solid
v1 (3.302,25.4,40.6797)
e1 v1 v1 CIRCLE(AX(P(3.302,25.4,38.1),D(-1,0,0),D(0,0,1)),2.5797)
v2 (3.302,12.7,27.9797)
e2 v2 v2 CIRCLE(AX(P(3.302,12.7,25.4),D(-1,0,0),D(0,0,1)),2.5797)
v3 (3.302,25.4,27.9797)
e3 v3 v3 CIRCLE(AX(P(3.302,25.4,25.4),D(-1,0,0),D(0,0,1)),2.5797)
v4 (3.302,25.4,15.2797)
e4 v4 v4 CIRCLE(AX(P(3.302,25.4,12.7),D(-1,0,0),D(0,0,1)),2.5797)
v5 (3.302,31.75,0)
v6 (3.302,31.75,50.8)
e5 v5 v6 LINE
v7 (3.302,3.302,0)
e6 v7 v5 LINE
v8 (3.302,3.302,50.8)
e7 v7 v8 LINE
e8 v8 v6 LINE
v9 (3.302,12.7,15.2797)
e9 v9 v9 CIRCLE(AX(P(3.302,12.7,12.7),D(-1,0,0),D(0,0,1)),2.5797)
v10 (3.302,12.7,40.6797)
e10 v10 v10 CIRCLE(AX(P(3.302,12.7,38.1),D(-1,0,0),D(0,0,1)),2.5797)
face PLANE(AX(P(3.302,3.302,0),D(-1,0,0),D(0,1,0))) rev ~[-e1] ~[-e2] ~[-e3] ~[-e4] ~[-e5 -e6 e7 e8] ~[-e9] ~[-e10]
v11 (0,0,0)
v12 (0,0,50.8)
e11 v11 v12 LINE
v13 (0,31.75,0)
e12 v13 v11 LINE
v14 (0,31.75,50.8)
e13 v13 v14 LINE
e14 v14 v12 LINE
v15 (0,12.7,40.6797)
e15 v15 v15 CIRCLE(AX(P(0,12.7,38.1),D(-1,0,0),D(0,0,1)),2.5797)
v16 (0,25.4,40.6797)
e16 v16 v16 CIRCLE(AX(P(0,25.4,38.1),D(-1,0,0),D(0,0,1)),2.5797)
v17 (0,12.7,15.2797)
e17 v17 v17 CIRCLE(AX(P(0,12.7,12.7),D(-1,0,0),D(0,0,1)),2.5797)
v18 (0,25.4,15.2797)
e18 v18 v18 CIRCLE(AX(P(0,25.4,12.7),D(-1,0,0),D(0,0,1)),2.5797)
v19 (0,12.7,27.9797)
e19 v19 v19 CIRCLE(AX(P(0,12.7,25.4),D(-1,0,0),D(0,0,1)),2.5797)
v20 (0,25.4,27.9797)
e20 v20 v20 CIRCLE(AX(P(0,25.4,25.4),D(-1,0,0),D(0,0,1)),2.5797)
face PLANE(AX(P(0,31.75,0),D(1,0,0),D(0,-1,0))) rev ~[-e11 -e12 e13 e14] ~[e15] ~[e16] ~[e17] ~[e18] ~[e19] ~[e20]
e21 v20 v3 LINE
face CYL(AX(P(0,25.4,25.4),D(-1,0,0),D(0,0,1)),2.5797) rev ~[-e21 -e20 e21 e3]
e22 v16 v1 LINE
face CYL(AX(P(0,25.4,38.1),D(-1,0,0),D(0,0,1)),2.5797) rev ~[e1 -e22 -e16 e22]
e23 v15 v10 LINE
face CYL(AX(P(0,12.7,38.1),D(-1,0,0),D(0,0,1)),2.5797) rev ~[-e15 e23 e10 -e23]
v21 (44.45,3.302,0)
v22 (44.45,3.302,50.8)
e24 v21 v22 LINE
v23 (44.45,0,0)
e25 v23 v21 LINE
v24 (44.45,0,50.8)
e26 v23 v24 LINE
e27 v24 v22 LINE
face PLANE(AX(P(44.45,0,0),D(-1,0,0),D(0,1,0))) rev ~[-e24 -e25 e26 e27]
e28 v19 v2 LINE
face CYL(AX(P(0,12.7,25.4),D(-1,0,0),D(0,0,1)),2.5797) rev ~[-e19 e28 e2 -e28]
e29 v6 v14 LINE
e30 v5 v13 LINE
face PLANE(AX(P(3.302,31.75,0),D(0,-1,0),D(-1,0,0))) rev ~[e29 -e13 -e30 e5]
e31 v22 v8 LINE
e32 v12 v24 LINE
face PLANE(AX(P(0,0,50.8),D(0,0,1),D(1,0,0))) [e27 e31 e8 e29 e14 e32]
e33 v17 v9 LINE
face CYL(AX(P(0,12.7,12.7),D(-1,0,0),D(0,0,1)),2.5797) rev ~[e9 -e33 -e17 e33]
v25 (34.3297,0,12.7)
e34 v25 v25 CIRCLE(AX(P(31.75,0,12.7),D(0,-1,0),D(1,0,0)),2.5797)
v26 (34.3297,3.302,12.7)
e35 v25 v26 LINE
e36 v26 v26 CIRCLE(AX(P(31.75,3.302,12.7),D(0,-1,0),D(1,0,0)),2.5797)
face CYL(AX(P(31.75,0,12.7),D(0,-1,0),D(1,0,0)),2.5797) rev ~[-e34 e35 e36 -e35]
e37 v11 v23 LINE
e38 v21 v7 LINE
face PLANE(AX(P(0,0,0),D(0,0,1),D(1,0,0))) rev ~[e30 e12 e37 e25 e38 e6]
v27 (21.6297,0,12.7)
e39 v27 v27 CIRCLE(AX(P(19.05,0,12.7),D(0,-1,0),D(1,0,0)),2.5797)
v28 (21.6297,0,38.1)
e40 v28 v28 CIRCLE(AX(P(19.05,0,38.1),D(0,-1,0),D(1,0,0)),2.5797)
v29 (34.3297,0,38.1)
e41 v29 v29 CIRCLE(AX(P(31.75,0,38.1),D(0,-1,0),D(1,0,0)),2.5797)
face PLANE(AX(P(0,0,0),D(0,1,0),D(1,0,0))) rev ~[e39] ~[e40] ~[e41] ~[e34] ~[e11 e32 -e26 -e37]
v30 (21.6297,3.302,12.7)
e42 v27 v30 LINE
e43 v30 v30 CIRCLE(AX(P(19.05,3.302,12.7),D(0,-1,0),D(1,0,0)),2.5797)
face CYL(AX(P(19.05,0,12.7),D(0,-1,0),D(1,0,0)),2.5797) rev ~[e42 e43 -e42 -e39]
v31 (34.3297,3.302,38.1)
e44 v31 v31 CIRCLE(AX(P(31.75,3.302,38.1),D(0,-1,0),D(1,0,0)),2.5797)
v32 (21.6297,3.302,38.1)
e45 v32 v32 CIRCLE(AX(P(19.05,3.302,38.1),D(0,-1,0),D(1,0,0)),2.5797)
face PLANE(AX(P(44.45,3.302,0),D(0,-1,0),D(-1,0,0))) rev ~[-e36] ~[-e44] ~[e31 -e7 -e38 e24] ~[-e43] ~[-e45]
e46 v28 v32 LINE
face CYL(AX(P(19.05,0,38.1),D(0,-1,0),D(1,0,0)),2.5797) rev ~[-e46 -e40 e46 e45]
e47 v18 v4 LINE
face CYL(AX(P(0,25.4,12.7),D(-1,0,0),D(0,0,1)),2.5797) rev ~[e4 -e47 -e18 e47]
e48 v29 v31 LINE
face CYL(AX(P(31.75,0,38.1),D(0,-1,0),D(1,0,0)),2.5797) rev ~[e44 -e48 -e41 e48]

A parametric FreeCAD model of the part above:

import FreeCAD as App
import Part
import Sketcher
Q = App.Units.Quantity

doc = App.newDocument("Part")
body = doc.addObject("PartDesign::Body", "Body")

# Sketch on XY plane
sketch1 = body.newObject("Sketcher::SketchObject", "Sketch")
sketch1.AttachmentSupport = (doc.getObject("XY_Plane"), [""])
sketch1.MapMode = "FlatFace"
sketch1.addGeometry([
    Part.LineSegment(App.Vector(0, 31.75, 0), App.Vector(0, 0, 0)),  # 0
    Part.LineSegment(App.Vector(0, 0, 0), App.Vector(44.45, 0, 0)),  # 1
    Part.LineSegment(App.Vector(44.45, 0, 0), App.Vector(44.45, 3.302, 0)),  # 2
    Part.LineSegment(App.Vector(44.45, 3.302, 0), App.Vector(3.302, 3.302, 0)),  # 3
    Part.LineSegment(App.Vector(3.302, 3.302, 0), App.Vector(3.302, 31.75, 0)),  # 4
    Part.LineSegment(App.Vector(3.302, 31.75, 0), App.Vector(0, 31.75, 0)),  # 5
], False)
sketch1.addConstraint([
    Sketcher.Constraint("Coincident", 0, 2, 1, 1),
    Sketcher.Constraint("Coincident", 1, 2, 2, 1),
    Sketcher.Constraint("Coincident", 2, 2, 3, 1),
    Sketcher.Constraint("Coincident", 3, 2, 4, 1),
    Sketcher.Constraint("Coincident", 4, 2, 5, 1),
    Sketcher.Constraint("Coincident", 5, 2, 0, 1),
    Sketcher.Constraint("Vertical", 0),
    Sketcher.Constraint("Horizontal", 1),
    Sketcher.Constraint("Vertical", 2),
    Sketcher.Constraint("Horizontal", 3),
    Sketcher.Constraint("Vertical", 4),
    Sketcher.Constraint("Horizontal", 5),
    Sketcher.Constraint("Coincident", 0, 2, -1, 1),
    Sketcher.Constraint("Equal", 5, 2),
    Sketcher.Constraint("DistanceX", 1, 1, 1, 2, Q("1.75 in")),
    Sketcher.Constraint("DistanceX", 5, 2, 5, 1, Q("0.13 in")),
    Sketcher.Constraint("DistanceY", 0, 2, 0, 1, Q("1.25 in")),
])
pad1 = body.newObject("PartDesign::Pad", "Pad")
pad1.Profile = sketch1
pad1.Length = Q("2 in")

# Sketch on YZ plane
sketch2 = body.newObject("Sketcher::SketchObject", "Sketch001")
sketch2.AttachmentSupport = (doc.getObject("YZ_Plane"), [""])
sketch2.MapMode = "FlatFace"
sketch2.addGeometry([
    Part.Circle(App.Vector(25.4, 12.7, 0), App.Vector(0, 0, 1), 2.5797),  # 0
    Part.Circle(App.Vector(25.4, 25.4, 0), App.Vector(0, 0, 1), 2.5797),  # 1
    Part.Circle(App.Vector(25.4, 38.1, 0), App.Vector(0, 0, 1), 2.5797),  # 2
    Part.Circle(App.Vector(12.7, 38.1, 0), App.Vector(0, 0, 1), 2.5797),  # 3
    Part.Circle(App.Vector(12.7, 25.4, 0), App.Vector(0, 0, 1), 2.5797),  # 4
    Part.Circle(App.Vector(12.7, 12.7, 0), App.Vector(0, 0, 1), 2.5797),  # 5
], False)
sketch2.addConstraint([
    Sketcher.Constraint("Equal", 0, 1),
    Sketcher.Constraint("Equal", 1, 2),
    Sketcher.Constraint("Equal", 2, 3),
    Sketcher.Constraint("Equal", 3, 4),
    Sketcher.Constraint("Equal", 4, 5),
    Sketcher.Constraint("Horizontal", 2, 3, 3, 3),
    Sketcher.Constraint("Horizontal", 1, 3, 4, 3),
    Sketcher.Constraint("Horizontal", 0, 3, 5, 3),
    Sketcher.Constraint("Vertical", 0, 3, 1, 3),
    Sketcher.Constraint("Vertical", 1, 3, 2, 3),
    Sketcher.Constraint("Vertical", 3, 3, 4, 3),
    Sketcher.Constraint("Vertical", 4, 3, 5, 3),
    Sketcher.Constraint("Diameter", 0, Q("0.203126 in")),
    Sketcher.Constraint("DistanceY", -1, 1, 0, 3, Q("0.5 in")),
    Sketcher.Constraint("DistanceX", -1, 1, 3, 3, Q("0.5 in")),
    Sketcher.Constraint("DistanceY", 0, 3, 1, 3, Q("0.5 in")),
    Sketcher.Constraint("DistanceY", 1, 3, 2, 3, Q("0.5 in")),
    Sketcher.Constraint("DistanceX", 3, 3, 2, 3, Q("0.5 in")),
])
pocket1 = body.newObject("PartDesign::Pocket", "Pocket")
pocket1.Profile = sketch2
pocket1.Length = Q("2 in")
pocket1.Reversed = True

# Sketch on XZ plane
sketch3 = body.newObject("Sketcher::SketchObject", "Sketch002")
sketch3.AttachmentSupport = (doc.getObject("XZ_Plane"), [""])
sketch3.MapMode = "FlatFace"
sketch3.addGeometry([
    Part.Circle(App.Vector(31.75, 38.1, 0), App.Vector(0, 0, 1), 2.5797),
    Part.Circle(App.Vector(19.05, 38.1, 0), App.Vector(0, 0, 1), 2.5797),
    Part.Circle(App.Vector(31.75, 12.7, 0), App.Vector(0, 0, 1), 2.5797),
    Part.Circle(App.Vector(19.05, 12.7, 0), App.Vector(0, 0, 1), 2.5797),
], False)
sketch3.addConstraint([
    Sketcher.Constraint("Equal", 0, 1),
    Sketcher.Constraint("Equal", 1, 2),
    Sketcher.Constraint("Equal", 2, 3),
    Sketcher.Constraint("Horizontal", 0, 3, 1, 3),
    Sketcher.Constraint("Horizontal", 2, 3, 3, 3),
    Sketcher.Constraint("Vertical", 0, 3, 2, 3),
    Sketcher.Constraint("Vertical", 1, 3, 3, 3),
    Sketcher.Constraint("Diameter", 0, Q("0.203126 in")),
    Sketcher.Constraint("DistanceY", -1, 1, 2, 3, Q("0.5 in")),
    Sketcher.Constraint("DistanceX", 1, 3, 0, 3, Q("0.5 in")),
    Sketcher.Constraint("DistanceY", 2, 3, 0, 3, Q("1 in")),
    Sketcher.Constraint("DistanceX", -1, 1, 0, 3, Q("1.25 in")),
])
pocket2 = body.newObject("PartDesign::Pocket", "Pocket001")
pocket2.Profile = sketch3
pocket2.Length = Q("1 in")

doc.recompute()
